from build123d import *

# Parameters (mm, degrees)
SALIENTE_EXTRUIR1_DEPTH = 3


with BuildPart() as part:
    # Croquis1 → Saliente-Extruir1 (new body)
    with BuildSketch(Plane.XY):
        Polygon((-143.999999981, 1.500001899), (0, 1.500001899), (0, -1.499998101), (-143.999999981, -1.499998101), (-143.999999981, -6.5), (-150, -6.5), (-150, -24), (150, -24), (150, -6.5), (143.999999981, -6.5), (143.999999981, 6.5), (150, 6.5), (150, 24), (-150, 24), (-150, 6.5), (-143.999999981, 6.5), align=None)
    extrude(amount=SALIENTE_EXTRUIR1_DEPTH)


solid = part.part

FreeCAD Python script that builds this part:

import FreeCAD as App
import Part
import Sketcher
from FreeCAD import Vector
Q = App.Units.Quantity


def add_polygon(sketch, points):
    """Adds a closed chain of lines whose ends are joined by coincident constraints."""
    first, n = sketch.GeometryCount, len(points)
    for a, b in zip(points, points[1:] + points[:1]):
        sketch.addGeometry(Part.LineSegment(App.Vector(*a, 0), App.Vector(*b, 0)), False)
    for i in range(n):
        sketch.addConstraint(Sketcher.Constraint("Coincident", first + i, 2, first + (i + 1) % n, 1))

doc = App.newDocument("Part")
body = doc.addObject("PartDesign::Body", "Body")

# Sketch on XY plane
sketch1 = body.newObject("Sketcher::SketchObject", "Sketch")
sketch1.AttachmentSupport = (doc.getObject("XY_Plane"), [""])
sketch1.MapMode = "FlatFace"
add_polygon(sketch1, [(-144, 1.500002), (0, 1.500002), (0, -1.499998), (-144, -1.499998), (-144, -6.5), (-150, -6.5), (-150, -24), (150, -24), (150, -6.5), (144, -6.5), (144, 6.5), (150, 6.5), (150, 24), (-150, 24), (-150, 6.5), (-144, 6.5)])  # lines 0-15
sketch1.addConstraint(Sketcher.Constraint("Horizontal", 0))
sketch1.addConstraint(Sketcher.Constraint("Vertical", 1))
sketch1.addConstraint(Sketcher.Constraint("Horizontal", 2))
sketch1.addConstraint(Sketcher.Constraint("Vertical", 3))
sketch1.addConstraint(Sketcher.Constraint("Horizontal", 4))
sketch1.addConstraint(Sketcher.Constraint("Vertical", 5))
sketch1.addConstraint(Sketcher.Constraint("Horizontal", 6))
sketch1.addConstraint(Sketcher.Constraint("Vertical", 7))
sketch1.addConstraint(Sketcher.Constraint("Horizontal", 8))
sketch1.addConstraint(Sketcher.Constraint("Vertical", 9))
sketch1.addConstraint(Sketcher.Constraint("Horizontal", 10))
sketch1.addConstraint(Sketcher.Constraint("Vertical", 11))
sketch1.addConstraint(Sketcher.Constraint("Horizontal", 12))
sketch1.addConstraint(Sketcher.Constraint("Vertical", 13))
sketch1.addConstraint(Sketcher.Constraint("Horizontal", 14))
sketch1.addConstraint(Sketcher.Constraint("Vertical", 15))
sketch1.addConstraint(Sketcher.Constraint("Symmetric", 0, 2, 1, 2, -1, 1))
sketch1.addConstraint(Sketcher.Constraint("Symmetric", 3, 2, 9, 2, -1, 1))
sketch1.addConstraint(Sketcher.Constraint("Symmetric", 5, 2, 11, 2, -1, 1))
sketch1.addConstraint(Sketcher.Constraint("Symmetric", 7, 2, 13, 2, -1, 1))
sketch1.addConstraint(Sketcher.Constraint("Symmetric", 4, 2, 7, 2, -2))
sketch1.addConstraint(Sketcher.Constraint("Vertical", 3, 2, 14, 2))
sketch1.addConstraint(Sketcher.Constraint("DistanceX", 0, 1, 0, 2, Q("144 mm")))
sketch1.addConstraint(Sketcher.Constraint("DistanceX", 4, 2, 4, 1, Q("6 mm")))
sketch1.addConstraint(Sketcher.Constraint("DistanceY", 1, 2, 1, 1, Q("3 mm")))
sketch1.addConstraint(Sketcher.Constraint("DistanceY", 3, 2, 3, 1, Q("5.000002 mm")))
sketch1.addConstraint(Sketcher.Constraint("DistanceY", 5, 2, 5, 1, Q("17.5 mm")))
pad1 = body.newObject("PartDesign::Pad", "Pad")
pad1.Profile = sketch1
pad1.Length = 3

doc.recompute()
